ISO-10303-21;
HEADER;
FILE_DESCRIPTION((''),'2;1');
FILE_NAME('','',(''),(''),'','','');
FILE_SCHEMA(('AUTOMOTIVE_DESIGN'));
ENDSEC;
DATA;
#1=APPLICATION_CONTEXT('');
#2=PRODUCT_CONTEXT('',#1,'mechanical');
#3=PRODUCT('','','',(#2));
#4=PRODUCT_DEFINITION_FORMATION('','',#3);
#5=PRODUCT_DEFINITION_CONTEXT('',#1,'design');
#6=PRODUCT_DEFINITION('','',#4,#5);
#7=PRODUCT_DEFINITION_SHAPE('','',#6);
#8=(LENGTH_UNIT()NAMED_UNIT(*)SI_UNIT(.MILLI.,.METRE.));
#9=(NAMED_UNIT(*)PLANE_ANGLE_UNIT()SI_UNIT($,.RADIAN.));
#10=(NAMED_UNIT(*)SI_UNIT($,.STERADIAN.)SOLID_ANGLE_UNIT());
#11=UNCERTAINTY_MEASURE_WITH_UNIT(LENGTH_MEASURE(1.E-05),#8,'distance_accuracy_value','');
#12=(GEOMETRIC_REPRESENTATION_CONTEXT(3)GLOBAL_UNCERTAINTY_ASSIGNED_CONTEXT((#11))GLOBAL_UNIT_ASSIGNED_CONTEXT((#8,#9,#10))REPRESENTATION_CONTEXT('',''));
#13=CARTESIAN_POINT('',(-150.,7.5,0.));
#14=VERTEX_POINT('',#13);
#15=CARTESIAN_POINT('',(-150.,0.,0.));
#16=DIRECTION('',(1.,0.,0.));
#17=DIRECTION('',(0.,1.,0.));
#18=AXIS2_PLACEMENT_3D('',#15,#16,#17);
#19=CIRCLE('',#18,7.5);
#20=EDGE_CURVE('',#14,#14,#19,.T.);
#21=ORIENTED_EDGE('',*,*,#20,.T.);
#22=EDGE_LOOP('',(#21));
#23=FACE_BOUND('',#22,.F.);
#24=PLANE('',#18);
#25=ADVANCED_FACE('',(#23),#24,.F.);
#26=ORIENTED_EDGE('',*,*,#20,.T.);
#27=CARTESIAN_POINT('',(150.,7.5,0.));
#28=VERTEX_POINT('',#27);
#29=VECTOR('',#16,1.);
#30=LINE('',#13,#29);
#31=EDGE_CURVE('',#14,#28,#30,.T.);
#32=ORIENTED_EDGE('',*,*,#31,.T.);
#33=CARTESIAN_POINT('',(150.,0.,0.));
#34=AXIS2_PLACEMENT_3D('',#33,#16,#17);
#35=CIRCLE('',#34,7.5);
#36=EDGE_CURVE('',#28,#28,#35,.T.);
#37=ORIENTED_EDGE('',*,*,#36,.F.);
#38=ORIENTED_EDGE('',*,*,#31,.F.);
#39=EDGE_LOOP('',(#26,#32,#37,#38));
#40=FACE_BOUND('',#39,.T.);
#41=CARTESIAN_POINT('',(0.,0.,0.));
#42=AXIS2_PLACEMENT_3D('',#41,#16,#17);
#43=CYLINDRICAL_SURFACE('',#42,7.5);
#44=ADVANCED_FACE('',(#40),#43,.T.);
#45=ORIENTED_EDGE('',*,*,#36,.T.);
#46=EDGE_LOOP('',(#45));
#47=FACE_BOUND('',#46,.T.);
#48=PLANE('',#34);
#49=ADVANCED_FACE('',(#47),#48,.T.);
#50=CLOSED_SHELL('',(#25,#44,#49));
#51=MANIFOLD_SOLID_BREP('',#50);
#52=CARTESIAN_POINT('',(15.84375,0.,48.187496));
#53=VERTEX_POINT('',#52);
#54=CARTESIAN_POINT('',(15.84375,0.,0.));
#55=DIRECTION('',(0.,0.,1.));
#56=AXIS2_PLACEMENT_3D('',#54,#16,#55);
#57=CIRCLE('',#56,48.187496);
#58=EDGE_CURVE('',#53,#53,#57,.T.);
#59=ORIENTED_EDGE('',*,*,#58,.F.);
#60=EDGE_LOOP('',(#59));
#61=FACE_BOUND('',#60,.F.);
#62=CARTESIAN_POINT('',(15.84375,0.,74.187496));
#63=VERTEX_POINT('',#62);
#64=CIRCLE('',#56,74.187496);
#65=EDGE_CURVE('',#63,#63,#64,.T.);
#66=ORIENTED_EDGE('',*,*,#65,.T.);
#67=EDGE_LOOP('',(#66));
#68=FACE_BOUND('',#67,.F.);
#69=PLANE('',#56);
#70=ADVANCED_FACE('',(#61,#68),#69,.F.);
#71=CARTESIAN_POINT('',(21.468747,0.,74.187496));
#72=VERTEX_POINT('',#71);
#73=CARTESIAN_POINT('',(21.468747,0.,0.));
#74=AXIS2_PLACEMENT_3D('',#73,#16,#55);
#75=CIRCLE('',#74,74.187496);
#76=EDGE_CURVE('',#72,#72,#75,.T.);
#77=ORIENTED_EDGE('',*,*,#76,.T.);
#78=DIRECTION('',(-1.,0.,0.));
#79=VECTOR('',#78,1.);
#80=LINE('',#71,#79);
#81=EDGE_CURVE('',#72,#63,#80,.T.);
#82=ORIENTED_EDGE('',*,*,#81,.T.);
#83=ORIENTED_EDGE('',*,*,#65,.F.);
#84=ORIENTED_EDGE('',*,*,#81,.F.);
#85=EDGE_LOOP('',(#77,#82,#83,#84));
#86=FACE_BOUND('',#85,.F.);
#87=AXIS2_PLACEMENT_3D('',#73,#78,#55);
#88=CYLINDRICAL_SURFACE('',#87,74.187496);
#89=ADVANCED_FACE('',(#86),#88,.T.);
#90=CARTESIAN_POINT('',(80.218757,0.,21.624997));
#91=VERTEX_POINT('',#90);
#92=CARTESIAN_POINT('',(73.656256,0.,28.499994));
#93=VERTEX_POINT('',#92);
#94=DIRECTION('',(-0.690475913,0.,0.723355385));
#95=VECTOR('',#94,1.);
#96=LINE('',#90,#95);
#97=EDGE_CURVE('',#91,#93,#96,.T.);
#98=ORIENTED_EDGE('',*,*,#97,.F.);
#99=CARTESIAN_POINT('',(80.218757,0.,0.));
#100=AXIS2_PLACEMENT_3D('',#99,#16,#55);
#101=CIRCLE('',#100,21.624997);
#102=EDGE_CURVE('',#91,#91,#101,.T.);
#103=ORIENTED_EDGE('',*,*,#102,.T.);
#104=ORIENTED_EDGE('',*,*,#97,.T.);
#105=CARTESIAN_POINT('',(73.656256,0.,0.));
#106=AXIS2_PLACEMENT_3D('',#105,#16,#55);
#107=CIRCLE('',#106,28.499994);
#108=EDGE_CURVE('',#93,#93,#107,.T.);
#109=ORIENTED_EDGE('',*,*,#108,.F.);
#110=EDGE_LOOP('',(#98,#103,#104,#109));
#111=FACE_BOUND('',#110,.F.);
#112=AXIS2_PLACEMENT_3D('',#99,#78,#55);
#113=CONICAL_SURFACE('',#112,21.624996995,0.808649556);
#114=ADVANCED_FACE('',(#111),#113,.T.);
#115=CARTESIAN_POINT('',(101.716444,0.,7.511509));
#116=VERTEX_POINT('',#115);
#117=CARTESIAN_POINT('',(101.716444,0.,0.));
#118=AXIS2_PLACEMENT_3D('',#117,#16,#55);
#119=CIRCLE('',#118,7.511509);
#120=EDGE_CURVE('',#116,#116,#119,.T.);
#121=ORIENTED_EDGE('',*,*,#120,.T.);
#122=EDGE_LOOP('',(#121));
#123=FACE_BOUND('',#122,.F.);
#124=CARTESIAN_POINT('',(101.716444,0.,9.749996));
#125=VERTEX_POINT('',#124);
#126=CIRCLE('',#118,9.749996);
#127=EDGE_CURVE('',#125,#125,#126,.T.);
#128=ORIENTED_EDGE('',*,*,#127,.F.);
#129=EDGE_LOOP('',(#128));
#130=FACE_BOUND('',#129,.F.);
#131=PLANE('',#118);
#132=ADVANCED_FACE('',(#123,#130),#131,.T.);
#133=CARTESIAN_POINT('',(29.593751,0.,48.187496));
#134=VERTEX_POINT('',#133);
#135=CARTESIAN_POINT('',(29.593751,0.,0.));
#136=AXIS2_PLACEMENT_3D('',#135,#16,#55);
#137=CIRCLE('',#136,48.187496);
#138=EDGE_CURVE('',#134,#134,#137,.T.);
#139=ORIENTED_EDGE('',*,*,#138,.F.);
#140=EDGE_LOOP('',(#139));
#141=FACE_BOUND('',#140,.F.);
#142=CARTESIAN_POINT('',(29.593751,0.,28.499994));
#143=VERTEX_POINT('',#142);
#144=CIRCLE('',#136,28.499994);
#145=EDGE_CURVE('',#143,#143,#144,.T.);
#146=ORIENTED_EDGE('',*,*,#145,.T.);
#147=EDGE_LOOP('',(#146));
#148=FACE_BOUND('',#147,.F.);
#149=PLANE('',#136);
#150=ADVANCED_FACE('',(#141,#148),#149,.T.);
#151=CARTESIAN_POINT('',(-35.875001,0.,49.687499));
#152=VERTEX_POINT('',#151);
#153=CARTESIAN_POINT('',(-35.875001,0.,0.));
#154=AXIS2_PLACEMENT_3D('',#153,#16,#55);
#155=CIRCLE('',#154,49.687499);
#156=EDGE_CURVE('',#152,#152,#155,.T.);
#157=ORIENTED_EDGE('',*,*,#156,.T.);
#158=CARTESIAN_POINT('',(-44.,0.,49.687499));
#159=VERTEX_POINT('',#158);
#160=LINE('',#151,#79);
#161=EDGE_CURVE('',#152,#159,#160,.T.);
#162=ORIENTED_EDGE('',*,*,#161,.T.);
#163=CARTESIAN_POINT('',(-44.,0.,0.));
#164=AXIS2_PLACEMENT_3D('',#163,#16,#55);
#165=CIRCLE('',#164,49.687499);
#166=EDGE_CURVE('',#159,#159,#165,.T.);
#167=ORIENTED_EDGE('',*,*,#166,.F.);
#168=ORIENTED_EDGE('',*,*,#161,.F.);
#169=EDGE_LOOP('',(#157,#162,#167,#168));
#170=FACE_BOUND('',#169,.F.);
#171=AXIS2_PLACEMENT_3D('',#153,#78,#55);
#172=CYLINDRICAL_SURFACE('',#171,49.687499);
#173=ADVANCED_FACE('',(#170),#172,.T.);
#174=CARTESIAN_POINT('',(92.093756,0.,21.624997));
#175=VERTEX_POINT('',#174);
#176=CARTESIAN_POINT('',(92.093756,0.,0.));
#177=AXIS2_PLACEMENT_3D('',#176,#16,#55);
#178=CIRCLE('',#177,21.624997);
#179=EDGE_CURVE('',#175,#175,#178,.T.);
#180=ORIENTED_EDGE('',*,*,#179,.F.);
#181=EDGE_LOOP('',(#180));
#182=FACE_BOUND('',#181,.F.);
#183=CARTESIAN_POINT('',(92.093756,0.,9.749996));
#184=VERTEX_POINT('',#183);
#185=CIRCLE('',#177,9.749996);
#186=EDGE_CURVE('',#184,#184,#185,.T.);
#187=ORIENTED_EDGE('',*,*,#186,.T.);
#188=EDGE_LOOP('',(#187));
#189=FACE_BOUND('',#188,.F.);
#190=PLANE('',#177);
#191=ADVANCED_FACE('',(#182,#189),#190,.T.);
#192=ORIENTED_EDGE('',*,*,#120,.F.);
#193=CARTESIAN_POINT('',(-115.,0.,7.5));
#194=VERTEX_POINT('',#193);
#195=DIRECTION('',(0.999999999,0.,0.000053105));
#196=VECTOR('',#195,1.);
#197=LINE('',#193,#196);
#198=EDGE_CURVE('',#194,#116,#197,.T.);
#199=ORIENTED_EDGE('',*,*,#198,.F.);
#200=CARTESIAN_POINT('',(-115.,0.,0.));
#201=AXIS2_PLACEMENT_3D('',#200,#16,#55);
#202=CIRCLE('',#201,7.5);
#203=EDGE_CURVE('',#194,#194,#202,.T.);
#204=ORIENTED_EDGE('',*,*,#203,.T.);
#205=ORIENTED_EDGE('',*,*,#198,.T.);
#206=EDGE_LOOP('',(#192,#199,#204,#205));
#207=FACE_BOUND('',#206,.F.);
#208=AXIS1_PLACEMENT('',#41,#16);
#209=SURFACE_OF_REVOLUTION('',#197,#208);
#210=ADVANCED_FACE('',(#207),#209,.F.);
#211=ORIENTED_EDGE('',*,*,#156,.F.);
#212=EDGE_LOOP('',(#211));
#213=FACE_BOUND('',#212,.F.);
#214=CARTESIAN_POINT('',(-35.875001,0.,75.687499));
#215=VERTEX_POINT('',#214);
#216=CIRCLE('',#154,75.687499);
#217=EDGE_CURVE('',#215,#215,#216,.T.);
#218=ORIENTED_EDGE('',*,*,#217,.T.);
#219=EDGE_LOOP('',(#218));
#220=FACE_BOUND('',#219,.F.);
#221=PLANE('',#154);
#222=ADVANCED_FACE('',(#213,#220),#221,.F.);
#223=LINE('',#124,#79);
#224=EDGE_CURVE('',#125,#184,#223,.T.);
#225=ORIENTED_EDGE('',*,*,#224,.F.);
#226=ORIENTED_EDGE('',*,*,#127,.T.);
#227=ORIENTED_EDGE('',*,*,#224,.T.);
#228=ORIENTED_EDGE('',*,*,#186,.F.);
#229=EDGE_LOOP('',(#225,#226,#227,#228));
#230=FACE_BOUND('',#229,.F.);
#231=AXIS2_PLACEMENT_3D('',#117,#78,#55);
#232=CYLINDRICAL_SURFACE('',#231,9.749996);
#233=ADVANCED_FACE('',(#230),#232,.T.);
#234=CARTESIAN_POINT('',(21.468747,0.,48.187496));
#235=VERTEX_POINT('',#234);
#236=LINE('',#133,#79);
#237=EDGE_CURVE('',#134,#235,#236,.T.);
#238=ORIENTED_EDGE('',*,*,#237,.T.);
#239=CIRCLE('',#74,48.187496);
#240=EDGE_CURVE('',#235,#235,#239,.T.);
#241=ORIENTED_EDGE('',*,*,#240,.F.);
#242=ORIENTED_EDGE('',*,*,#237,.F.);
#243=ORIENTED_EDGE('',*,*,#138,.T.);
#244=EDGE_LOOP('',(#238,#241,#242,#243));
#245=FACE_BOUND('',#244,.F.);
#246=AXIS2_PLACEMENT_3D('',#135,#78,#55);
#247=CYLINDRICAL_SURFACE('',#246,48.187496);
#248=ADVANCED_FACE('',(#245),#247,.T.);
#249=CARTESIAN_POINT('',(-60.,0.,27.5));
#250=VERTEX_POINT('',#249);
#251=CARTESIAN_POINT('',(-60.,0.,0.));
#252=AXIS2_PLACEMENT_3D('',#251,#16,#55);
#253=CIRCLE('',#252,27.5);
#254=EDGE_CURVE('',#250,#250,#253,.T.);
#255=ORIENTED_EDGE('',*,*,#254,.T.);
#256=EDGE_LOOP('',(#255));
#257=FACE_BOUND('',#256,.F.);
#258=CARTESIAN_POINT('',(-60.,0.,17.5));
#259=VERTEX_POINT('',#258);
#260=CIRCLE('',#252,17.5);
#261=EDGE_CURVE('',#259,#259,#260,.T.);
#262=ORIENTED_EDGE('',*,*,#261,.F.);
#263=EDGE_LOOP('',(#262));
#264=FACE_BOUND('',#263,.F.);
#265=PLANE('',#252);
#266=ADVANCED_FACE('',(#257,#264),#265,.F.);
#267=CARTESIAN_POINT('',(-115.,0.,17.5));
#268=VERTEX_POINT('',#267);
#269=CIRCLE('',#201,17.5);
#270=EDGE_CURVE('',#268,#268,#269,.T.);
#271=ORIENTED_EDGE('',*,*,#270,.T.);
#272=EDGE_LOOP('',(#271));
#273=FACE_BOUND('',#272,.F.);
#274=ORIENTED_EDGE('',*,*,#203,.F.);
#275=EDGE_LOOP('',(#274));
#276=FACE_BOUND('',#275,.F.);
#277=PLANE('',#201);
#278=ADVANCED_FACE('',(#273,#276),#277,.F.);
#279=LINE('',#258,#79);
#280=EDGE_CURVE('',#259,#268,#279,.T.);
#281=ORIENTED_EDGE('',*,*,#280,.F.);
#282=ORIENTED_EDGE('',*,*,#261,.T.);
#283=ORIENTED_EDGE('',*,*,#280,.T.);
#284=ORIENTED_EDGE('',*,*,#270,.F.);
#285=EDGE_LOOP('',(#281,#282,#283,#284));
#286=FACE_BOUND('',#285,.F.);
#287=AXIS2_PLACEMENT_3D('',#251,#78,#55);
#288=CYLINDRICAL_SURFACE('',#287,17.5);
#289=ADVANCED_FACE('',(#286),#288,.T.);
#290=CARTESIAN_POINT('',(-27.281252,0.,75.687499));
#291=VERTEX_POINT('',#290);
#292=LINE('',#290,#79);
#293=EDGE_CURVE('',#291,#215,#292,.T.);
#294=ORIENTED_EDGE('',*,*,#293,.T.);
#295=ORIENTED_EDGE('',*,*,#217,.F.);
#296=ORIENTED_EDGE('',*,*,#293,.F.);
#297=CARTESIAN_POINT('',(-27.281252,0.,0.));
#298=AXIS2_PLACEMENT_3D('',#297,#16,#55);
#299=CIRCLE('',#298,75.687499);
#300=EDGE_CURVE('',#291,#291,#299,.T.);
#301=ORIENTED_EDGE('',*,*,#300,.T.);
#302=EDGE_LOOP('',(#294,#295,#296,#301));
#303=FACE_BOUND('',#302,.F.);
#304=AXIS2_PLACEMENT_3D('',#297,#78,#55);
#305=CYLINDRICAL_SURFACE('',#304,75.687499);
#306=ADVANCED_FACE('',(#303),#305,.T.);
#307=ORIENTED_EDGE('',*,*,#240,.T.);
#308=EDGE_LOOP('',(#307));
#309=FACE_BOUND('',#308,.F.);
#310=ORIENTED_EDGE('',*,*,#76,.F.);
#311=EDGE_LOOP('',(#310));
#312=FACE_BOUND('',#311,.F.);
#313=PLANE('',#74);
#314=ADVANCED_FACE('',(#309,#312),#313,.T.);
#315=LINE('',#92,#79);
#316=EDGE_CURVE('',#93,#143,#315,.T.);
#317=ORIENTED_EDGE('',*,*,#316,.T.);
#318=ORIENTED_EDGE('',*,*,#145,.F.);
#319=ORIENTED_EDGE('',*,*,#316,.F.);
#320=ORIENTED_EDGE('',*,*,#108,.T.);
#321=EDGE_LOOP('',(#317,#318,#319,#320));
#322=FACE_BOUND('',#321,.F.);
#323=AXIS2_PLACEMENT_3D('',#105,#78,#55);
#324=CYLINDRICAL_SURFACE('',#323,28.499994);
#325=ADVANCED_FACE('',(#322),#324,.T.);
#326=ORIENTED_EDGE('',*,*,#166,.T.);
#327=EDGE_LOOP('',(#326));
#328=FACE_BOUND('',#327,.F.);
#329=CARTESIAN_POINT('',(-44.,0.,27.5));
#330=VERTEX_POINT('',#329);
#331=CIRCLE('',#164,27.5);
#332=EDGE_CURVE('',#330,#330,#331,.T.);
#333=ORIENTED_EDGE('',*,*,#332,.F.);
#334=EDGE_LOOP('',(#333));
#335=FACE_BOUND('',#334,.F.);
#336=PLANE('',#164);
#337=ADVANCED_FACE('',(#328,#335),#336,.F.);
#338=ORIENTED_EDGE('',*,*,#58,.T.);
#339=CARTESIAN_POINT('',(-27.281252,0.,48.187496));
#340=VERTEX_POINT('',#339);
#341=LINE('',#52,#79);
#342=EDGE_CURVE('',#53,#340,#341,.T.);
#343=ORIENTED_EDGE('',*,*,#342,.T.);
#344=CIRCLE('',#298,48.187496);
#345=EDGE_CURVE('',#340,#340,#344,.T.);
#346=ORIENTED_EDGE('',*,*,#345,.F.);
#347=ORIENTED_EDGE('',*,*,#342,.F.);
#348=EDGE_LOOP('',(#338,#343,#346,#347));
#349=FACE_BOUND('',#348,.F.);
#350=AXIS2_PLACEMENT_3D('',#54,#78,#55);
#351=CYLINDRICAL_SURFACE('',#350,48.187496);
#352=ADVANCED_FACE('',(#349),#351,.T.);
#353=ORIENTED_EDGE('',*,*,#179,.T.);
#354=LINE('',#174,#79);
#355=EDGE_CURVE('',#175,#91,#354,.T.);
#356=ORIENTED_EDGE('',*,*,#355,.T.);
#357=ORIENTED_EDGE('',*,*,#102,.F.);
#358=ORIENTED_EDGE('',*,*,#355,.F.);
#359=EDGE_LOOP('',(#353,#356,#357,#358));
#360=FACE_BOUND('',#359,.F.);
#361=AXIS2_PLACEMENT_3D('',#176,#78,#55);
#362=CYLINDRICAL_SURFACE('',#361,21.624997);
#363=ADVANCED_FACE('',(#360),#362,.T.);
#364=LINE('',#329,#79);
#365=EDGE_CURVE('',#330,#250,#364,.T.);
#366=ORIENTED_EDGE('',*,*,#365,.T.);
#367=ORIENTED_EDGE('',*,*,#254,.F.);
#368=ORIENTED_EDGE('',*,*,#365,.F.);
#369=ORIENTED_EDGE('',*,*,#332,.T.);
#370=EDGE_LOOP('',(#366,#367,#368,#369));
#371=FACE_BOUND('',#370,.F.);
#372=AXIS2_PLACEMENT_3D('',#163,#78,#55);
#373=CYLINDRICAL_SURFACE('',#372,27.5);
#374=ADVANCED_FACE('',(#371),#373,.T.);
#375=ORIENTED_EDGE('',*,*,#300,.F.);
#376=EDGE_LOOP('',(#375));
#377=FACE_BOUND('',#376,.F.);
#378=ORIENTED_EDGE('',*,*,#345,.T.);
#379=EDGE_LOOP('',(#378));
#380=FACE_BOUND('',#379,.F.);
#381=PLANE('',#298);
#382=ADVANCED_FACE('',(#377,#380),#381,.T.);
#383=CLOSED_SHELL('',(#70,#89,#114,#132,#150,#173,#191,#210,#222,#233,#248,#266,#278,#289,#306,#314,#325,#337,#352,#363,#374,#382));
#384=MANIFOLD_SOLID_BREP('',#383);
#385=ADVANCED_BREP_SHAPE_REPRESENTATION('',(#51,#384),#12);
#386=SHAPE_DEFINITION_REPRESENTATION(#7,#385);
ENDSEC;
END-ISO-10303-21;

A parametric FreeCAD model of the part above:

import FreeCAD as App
import Part
import Sketcher
from FreeCAD import Vector


def add_polygon(sketch, points):
    """Adds a closed chain of lines whose ends are joined by coincident constraints."""
    first, n = sketch.GeometryCount, len(points)
    for a, b in zip(points, points[1:] + points[:1]):
        sketch.addGeometry(Part.LineSegment(App.Vector(*a, 0), App.Vector(*b, 0)), False)
    for i in range(n):
        sketch.addConstraint(Sketcher.Constraint("Coincident", first + i, 2, first + (i + 1) % n, 1))

doc = App.newDocument("Part")
body = doc.addObject("PartDesign::Body", "Body")

# Sketch on YZ plane
sketch1 = body.newObject("Sketcher::SketchObject", "Sketch")
sketch1.AttachmentSupport = (doc.getObject("YZ_Plane"), [""])
sketch1.MapMode = "FlatFace"
sketch1.addGeometry(Part.Circle(Vector(0, 0, 0), Vector(0, 0, 1), 7.5), False)
sketch1.addConstraint([
    Sketcher.Constraint("Coincident", 0, 3, -1, 1),
    Sketcher.Constraint("Diameter", 0, 15.0),
])
pad1 = body.newObject("PartDesign::Pad", "Pad")
pad1.Profile = sketch1
pad1.Length = 300
pad1.Midplane = True
body2 = doc.addObject("PartDesign::Body", "Body001")

# Sketch on XZ plane
sketch2 = body2.newObject("Sketcher::SketchObject", "Sketch001")
sketch2.AttachmentSupport = (doc.getObject("XZ_Plane001"), [""])
sketch2.MapMode = "FlatFace"
add_polygon(sketch2, [(-115, 17.5), (-115, 7.5), (101.716444, 7.511509), (101.716444, 9.749996), (92.093756, 9.749996), (92.093756, 21.624997), (80.218757, 21.624997), (73.656256, 28.499994), (29.593751, 28.499994), (29.593751, 48.187496), (21.468747, 48.187496), (21.468747, 74.187496), (15.84375, 74.187496), (15.84375, 48.187496), (-27.281252, 48.187496), (-27.281252, 75.687499), (-35.875001, 75.687499), (-35.875001, 49.687499), (-44, 49.687499), (-44, 27.5), (-60, 27.5), (-60, 17.5)])  # lines 0-21
sketch2.addConstraint([
    Sketcher.Constraint("Vertical", 0),
    Sketcher.Constraint("Vertical", 2),
    Sketcher.Constraint("Horizontal", 3),
    Sketcher.Constraint("Vertical", 4),
    Sketcher.Constraint("Horizontal", 5),
    Sketcher.Constraint("Horizontal", 7),
    Sketcher.Constraint("Vertical", 8),
    Sketcher.Constraint("Horizontal", 9),
    Sketcher.Constraint("Vertical", 10),
    Sketcher.Constraint("Horizontal", 11),
    Sketcher.Constraint("Vertical", 12),
    Sketcher.Constraint("Horizontal", 13),
    Sketcher.Constraint("Vertical", 14),
    Sketcher.Constraint("Horizontal", 15),
    Sketcher.Constraint("Vertical", 16),
    Sketcher.Constraint("Horizontal", 17),
    Sketcher.Constraint("Vertical", 18),
    Sketcher.Constraint("Horizontal", 19),
    Sketcher.Constraint("Vertical", 20),
    Sketcher.Constraint("Horizontal", 21),
    Sketcher.Constraint("Horizontal", 9, 2, 12, 2),
    Sketcher.Constraint("Equal", 5, 4),
    Sketcher.Constraint("Equal", 12, 16),
    Sketcher.Constraint("Equal", 0, 20),
    Sketcher.Constraint("DistanceX", 19, 2, 19, 1, 16.0),
    Sketcher.Constraint("DistanceX", 21, 2, 21, 1, 55.0),
    Sketcher.Constraint("DistanceY", 0, 2, 0, 1, 10.0),
    Sketcher.Constraint("DistanceY", 10, 1, 10, 2, 26.0),
    Sketcher.Constraint("DistanceX", 0, 2, -1, 1, 115.0),
    Sketcher.Constraint("DistanceY", -1, 1, 0, 2, 7.5),
    Sketcher.Constraint("DistanceX", 5, 2, 5, 1, 11.875),
    Sketcher.Constraint("DistanceX", 13, 2, 13, 1, 43.125002),
    Sketcher.Constraint("DistanceX", 17, 2, 17, 1, 8.124999),
    Sketcher.Constraint("DistanceY", 3, 2, 6, 2, 18.749999),
    Sketcher.Constraint("DistanceX", 11, 2, 8, 2, 13.750002),
    Sketcher.Constraint("DistanceX", 13, 2, 9, 2, 48.749999),
    Sketcher.Constraint("DistanceY", 8, 1, 8, 2, 19.687501),
    Sketcher.Constraint("DistanceY", 18, 2, 18, 1, 22.187499),
    Sketcher.Constraint("DistanceX", 3, 2, 3, 1, 9.622688),
    Sketcher.Constraint("DistanceX", 15, 2, 15, 1, 8.593749),
    Sketcher.Constraint("DistanceX", 6, 2, 5, 2, 6.5625),
    Sketcher.Constraint("DistanceX", 7, 2, 7, 1, 44.062505),
    Sketcher.Constraint("DistanceY", 2, 1, 2, 2, 2.238487),
    Sketcher.Constraint("DistanceY", 14, 1, 14, 2, 27.500003),
])
revolution = body2.newObject("PartDesign::Revolution", "Revolution")
revolution.Profile = sketch2
revolution.ReferenceAxis = (sketch2, ["H_Axis"])
revolution.Angle = 360

doc.recompute()
